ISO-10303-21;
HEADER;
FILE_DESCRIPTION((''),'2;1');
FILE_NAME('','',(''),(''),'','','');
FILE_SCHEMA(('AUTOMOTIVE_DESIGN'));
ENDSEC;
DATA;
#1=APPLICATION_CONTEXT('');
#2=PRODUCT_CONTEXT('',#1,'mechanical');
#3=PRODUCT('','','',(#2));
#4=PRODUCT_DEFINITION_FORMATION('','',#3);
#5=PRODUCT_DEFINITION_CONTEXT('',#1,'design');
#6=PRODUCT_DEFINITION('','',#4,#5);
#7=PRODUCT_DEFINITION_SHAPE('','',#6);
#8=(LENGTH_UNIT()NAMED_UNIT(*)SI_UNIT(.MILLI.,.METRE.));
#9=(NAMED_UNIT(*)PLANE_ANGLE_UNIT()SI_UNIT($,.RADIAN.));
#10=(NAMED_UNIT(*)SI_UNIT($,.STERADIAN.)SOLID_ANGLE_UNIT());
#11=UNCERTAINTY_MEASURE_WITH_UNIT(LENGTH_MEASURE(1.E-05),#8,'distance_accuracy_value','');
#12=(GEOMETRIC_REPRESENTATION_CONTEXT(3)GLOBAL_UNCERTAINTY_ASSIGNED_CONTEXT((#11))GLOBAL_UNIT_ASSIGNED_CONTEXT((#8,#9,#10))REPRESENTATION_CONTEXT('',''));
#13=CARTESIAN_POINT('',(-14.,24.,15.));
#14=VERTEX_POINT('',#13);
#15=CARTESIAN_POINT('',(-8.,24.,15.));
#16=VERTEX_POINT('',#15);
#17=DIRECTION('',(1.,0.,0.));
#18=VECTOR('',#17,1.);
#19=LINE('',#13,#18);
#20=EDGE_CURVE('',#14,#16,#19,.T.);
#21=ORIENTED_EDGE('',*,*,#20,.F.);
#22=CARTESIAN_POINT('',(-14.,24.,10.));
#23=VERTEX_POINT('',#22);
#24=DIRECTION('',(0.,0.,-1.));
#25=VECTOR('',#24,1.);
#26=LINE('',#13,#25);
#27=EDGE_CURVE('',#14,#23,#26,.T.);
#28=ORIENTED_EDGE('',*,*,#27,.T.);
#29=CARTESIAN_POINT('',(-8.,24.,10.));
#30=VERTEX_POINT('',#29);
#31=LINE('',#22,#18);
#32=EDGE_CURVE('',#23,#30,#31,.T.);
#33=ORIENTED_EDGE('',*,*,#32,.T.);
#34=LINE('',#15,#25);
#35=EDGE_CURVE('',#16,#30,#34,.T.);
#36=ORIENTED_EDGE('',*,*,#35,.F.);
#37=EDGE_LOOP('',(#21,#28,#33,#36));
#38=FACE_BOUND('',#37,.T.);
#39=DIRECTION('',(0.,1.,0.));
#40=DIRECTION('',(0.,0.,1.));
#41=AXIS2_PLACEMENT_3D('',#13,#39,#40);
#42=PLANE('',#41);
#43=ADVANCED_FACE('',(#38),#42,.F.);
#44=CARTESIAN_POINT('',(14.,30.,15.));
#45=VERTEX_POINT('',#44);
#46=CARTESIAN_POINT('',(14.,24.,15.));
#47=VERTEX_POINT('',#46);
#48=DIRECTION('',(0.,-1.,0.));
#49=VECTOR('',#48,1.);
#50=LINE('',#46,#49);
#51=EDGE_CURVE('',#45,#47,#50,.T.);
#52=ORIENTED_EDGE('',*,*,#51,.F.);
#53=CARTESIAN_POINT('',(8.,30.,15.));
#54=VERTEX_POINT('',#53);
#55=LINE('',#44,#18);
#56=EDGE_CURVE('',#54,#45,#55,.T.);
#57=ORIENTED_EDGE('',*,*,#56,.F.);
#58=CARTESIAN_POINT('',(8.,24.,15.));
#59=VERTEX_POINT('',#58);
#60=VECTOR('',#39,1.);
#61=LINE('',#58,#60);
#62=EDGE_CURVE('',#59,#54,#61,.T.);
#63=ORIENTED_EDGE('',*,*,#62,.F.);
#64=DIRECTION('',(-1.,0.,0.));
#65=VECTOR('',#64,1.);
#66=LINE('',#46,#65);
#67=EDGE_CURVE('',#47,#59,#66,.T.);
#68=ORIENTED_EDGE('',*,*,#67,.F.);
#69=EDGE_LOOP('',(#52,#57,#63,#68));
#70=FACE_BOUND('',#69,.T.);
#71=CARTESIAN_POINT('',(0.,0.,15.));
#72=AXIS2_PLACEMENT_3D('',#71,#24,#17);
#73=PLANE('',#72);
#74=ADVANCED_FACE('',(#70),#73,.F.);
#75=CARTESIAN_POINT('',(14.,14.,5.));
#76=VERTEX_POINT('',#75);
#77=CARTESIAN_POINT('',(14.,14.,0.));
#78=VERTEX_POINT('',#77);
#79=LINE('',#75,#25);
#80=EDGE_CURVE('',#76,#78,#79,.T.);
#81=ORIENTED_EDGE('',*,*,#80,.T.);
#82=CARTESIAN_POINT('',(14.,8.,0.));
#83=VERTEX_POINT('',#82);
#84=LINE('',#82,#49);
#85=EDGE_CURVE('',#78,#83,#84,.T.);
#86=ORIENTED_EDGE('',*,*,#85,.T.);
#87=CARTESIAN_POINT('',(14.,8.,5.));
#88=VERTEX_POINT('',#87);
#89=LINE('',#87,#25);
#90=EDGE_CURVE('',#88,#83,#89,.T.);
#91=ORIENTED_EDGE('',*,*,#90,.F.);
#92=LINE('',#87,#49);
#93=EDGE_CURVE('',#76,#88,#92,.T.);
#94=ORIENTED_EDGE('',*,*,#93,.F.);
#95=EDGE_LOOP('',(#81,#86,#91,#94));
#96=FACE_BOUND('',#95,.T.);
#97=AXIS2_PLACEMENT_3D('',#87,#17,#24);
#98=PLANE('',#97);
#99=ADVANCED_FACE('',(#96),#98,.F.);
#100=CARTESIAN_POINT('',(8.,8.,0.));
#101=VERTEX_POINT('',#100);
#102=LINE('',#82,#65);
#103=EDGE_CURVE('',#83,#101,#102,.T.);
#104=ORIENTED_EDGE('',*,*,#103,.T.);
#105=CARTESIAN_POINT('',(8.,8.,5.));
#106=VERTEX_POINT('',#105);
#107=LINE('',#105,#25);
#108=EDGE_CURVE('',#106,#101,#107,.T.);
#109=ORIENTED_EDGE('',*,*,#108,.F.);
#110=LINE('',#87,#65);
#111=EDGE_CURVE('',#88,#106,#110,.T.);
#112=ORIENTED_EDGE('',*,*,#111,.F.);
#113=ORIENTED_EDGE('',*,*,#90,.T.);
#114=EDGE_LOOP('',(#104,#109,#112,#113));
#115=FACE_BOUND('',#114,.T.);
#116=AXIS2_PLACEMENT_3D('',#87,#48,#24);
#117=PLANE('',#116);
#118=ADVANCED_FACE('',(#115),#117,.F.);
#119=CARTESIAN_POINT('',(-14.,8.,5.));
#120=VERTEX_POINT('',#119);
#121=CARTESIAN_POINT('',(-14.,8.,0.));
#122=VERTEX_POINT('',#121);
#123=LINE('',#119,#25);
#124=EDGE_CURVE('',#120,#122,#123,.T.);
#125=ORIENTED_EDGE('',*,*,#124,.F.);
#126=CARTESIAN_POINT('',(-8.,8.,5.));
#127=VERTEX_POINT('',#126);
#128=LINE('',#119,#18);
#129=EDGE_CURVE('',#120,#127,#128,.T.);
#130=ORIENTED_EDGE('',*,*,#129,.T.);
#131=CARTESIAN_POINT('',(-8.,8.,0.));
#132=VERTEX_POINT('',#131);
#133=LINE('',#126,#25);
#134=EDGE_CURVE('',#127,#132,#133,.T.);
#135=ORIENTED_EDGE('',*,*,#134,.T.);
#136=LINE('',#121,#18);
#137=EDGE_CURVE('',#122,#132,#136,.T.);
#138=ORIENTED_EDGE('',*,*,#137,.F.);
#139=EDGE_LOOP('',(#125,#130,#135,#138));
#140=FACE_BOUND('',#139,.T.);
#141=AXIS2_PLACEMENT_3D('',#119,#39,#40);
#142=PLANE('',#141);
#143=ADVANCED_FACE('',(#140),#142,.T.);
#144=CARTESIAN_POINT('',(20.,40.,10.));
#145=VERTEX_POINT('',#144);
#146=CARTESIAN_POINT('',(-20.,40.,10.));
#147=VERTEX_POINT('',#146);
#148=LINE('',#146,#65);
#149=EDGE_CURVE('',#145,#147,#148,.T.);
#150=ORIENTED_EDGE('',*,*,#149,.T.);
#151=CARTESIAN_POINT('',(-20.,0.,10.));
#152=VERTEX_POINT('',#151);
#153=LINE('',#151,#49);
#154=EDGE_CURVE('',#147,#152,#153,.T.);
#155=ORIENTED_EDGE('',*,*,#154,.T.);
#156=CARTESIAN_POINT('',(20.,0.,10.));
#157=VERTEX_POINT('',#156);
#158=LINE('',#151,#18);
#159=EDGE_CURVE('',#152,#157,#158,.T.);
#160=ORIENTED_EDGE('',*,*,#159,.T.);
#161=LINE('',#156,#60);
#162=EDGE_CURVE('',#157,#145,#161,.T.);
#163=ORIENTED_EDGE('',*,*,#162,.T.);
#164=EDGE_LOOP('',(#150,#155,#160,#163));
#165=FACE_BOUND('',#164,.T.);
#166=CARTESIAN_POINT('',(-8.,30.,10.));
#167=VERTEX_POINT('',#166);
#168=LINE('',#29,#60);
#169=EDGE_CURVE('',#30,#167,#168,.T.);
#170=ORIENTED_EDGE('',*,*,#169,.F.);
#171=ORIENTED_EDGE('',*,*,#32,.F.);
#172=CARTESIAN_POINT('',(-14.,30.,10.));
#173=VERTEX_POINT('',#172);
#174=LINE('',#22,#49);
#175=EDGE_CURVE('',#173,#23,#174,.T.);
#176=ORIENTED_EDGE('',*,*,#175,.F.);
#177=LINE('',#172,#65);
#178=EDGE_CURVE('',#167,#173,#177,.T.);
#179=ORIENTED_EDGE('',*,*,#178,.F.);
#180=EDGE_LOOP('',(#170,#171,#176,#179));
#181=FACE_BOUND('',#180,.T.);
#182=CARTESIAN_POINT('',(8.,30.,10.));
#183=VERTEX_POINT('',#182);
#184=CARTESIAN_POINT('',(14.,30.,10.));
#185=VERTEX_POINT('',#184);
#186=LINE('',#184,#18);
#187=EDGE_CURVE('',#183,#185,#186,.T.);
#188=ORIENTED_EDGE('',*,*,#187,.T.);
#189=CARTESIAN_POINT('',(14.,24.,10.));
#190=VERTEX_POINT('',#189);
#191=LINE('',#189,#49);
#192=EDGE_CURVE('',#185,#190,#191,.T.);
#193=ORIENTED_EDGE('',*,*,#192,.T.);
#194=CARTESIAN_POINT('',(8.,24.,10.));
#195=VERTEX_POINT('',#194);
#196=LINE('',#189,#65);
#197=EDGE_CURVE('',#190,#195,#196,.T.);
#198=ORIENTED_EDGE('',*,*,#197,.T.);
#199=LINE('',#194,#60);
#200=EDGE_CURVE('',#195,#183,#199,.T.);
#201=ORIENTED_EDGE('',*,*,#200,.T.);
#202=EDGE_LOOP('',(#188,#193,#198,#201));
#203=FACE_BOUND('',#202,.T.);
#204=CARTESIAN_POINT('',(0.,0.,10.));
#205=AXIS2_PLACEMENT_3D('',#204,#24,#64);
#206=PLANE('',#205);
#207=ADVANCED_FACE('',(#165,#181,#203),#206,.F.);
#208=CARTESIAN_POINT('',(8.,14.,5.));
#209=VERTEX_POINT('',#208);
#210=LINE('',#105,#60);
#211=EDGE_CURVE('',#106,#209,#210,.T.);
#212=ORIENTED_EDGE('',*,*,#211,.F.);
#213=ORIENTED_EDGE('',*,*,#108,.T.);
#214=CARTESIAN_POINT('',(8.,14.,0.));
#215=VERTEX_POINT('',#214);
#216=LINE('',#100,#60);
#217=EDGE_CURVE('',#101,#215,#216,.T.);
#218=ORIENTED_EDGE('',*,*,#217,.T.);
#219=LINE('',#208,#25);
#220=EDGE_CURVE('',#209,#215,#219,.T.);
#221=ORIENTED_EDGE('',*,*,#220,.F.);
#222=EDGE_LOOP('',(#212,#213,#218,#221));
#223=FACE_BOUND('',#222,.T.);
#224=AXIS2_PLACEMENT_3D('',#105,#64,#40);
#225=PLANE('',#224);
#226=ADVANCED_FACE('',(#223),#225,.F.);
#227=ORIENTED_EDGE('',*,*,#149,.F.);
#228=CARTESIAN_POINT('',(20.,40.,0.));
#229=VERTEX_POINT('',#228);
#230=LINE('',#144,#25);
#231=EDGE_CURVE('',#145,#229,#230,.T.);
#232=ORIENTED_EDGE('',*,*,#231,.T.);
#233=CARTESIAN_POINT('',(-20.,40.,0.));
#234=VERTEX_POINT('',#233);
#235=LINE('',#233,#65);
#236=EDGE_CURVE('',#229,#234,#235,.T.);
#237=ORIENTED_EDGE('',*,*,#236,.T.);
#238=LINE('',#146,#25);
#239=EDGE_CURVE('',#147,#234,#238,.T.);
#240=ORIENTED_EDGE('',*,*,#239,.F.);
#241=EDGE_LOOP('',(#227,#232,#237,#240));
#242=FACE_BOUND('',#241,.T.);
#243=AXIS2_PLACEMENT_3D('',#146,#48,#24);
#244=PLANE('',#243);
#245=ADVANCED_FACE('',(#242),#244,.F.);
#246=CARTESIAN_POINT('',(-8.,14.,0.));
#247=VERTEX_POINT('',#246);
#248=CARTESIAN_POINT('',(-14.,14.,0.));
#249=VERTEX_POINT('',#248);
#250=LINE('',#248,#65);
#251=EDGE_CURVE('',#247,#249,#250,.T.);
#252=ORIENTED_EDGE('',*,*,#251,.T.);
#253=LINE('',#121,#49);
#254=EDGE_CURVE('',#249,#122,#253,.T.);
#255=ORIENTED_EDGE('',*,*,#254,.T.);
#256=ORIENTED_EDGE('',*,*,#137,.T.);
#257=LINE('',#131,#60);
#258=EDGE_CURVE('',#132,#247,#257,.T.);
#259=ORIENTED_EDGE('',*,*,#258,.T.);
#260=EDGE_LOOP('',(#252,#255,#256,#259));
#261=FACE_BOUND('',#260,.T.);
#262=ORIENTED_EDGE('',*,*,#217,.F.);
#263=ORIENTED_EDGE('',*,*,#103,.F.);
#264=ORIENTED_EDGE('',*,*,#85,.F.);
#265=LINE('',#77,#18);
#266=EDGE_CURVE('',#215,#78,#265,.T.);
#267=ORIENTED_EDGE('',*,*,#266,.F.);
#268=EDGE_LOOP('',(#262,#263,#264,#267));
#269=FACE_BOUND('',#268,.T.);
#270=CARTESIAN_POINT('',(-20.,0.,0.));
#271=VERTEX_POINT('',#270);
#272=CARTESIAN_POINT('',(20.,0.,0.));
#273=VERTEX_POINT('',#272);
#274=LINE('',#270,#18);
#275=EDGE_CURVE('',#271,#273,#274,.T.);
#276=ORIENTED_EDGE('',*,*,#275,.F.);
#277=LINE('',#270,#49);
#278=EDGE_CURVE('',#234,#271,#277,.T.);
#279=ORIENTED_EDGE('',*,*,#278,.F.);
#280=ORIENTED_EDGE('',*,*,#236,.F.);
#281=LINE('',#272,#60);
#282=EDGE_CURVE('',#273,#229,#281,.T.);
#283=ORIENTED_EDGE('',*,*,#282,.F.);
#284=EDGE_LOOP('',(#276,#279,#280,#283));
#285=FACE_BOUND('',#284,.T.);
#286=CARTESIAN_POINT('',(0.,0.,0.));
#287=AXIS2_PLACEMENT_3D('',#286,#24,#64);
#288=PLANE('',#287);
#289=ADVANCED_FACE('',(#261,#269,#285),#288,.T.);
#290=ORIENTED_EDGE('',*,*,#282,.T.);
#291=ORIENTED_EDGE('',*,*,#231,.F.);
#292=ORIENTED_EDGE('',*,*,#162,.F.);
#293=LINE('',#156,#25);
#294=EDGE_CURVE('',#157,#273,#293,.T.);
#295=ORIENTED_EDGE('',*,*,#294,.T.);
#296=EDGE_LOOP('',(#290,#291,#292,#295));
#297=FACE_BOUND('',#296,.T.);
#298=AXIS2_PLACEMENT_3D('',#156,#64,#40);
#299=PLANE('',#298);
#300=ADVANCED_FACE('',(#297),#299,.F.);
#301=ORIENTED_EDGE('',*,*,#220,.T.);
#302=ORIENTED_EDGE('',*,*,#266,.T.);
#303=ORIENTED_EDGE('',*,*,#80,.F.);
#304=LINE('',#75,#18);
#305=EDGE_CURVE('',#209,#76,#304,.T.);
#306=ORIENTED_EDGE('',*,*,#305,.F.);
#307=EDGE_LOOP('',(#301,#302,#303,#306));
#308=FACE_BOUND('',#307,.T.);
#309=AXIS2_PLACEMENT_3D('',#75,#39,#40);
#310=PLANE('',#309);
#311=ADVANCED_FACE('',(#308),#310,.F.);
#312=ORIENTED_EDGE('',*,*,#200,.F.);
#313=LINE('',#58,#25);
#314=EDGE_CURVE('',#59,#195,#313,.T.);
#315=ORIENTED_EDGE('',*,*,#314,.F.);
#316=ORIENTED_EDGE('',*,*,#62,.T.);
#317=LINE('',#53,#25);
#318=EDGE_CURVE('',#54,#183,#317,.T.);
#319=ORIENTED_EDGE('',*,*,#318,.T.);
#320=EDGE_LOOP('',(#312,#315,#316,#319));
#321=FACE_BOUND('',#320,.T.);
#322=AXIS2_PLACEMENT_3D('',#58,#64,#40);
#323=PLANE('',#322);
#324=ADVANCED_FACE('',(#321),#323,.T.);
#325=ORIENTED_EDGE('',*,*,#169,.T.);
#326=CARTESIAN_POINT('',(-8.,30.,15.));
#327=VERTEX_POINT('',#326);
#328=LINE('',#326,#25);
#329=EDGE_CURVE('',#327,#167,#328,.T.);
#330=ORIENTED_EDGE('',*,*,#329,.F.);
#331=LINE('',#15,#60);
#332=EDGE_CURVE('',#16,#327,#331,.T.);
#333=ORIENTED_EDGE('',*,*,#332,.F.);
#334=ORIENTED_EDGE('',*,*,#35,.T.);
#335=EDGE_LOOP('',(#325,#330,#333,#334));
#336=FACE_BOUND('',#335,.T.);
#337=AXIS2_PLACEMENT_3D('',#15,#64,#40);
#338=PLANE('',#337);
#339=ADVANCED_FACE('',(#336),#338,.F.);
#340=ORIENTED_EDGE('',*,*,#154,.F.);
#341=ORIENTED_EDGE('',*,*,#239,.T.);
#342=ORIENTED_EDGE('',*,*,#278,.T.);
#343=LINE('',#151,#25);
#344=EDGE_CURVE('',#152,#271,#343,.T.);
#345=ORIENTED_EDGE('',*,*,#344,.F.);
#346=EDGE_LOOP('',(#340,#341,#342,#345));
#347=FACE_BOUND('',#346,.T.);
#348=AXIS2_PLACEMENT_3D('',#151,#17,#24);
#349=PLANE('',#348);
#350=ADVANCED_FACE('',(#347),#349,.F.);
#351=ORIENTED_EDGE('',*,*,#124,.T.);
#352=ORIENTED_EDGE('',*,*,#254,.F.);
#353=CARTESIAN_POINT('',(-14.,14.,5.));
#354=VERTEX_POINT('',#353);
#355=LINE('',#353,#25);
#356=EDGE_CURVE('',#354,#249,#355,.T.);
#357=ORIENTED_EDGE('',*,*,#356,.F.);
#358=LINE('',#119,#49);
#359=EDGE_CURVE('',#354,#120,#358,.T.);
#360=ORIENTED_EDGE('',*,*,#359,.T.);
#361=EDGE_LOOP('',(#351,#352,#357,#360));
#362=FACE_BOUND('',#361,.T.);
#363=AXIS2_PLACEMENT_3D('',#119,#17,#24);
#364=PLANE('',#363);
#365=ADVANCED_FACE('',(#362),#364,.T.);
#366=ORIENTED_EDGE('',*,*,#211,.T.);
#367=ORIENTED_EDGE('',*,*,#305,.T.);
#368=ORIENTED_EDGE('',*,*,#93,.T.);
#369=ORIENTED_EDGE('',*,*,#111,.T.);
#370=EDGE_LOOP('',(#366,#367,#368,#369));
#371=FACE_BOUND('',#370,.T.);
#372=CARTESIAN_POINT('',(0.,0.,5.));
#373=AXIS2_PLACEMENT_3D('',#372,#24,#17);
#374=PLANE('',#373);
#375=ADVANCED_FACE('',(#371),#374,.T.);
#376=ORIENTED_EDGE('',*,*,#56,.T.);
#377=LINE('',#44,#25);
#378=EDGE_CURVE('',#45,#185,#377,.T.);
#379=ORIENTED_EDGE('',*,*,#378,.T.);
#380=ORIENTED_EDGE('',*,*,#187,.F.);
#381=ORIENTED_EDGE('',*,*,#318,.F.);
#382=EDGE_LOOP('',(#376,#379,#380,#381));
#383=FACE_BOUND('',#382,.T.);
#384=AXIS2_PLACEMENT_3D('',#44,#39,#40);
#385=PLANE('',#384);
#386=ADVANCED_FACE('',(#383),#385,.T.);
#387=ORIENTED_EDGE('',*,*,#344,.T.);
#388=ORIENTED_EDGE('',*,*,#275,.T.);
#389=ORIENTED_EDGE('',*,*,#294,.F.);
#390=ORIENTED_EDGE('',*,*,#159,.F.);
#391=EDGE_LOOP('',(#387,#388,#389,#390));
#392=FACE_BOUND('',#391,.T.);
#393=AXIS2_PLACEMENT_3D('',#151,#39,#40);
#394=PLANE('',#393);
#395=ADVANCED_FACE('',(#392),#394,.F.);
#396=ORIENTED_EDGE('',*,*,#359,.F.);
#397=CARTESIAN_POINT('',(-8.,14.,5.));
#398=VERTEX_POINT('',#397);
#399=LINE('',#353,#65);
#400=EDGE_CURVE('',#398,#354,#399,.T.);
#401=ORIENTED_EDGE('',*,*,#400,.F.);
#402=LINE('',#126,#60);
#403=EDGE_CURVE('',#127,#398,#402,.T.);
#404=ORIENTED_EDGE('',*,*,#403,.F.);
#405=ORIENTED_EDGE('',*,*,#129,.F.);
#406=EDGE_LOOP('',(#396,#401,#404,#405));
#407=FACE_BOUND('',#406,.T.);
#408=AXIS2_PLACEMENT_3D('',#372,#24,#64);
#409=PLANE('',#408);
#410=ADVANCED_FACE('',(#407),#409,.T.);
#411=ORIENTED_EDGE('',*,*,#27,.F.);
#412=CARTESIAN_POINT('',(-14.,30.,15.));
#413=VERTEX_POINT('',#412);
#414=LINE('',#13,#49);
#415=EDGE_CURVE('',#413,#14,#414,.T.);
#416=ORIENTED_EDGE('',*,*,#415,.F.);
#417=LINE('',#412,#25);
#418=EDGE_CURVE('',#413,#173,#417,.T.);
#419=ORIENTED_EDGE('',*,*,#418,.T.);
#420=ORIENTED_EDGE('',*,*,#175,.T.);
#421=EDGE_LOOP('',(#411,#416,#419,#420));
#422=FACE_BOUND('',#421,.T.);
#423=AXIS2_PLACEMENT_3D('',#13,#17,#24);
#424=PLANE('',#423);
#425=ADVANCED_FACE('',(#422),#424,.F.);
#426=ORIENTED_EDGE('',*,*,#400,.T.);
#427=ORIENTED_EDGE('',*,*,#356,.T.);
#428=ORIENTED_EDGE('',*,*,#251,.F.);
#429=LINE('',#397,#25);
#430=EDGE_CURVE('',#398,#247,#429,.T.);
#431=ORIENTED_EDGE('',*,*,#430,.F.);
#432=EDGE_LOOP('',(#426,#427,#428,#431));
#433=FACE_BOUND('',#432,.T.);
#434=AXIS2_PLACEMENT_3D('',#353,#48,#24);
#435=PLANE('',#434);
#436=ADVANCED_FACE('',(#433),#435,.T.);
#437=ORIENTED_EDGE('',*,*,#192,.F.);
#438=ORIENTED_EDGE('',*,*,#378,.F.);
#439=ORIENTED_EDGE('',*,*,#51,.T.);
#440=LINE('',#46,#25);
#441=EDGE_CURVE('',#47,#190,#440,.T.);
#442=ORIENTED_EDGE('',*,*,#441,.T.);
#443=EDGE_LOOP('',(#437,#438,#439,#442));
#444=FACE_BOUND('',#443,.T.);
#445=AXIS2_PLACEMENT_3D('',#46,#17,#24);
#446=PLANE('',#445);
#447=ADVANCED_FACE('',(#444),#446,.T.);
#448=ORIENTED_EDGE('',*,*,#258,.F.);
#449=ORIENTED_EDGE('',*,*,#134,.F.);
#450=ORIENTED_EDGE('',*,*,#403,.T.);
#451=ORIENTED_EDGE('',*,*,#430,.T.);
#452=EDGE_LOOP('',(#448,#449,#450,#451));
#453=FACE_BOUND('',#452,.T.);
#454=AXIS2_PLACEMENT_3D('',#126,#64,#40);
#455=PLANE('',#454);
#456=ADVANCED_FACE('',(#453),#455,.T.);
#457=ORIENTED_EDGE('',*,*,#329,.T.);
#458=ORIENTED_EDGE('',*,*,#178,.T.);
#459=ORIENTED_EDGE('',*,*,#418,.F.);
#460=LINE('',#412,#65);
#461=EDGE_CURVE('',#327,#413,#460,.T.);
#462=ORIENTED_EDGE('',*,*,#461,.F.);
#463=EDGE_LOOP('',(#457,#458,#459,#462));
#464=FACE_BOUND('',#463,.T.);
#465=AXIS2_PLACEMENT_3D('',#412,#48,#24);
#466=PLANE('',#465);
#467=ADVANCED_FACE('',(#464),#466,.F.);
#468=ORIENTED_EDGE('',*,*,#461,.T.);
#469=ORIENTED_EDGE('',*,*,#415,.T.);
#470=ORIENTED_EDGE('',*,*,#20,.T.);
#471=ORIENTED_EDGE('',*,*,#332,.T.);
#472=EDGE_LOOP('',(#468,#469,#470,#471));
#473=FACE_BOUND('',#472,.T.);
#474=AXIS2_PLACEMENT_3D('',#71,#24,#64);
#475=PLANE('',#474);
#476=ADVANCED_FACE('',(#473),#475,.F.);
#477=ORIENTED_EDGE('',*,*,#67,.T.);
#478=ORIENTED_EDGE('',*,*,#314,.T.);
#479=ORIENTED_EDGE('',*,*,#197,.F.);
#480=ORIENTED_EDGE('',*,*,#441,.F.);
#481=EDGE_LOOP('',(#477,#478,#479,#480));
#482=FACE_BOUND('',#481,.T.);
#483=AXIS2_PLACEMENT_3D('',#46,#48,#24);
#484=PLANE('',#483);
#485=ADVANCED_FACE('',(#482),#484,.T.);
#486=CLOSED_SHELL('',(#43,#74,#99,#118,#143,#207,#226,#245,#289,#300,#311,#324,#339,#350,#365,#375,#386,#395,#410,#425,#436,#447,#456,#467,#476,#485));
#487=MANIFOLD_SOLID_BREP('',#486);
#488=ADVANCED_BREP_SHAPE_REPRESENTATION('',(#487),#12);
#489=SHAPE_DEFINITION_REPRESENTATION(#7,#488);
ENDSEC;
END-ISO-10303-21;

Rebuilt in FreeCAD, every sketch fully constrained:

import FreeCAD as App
import Part
import Sketcher

V = App.Vector
Q = App.Units.Quantity

doc = App.newDocument("Part")
body = doc.addObject("PartDesign::Body", "Body")

sketch1 = body.newObject("Sketcher::SketchObject", "Sketch")
sketch1.AttachmentSupport = (doc.getObject("XY_Plane"), [""])
sketch1.MapMode = "FlatFace"
sketch1.addGeometry(Part.LineSegment(V(-20, 40, 0), V(-20, 0, 0)), False)
sketch1.addGeometry(Part.LineSegment(V(-20, 0, 0), V(20, 0, 0)), False)
sketch1.addGeometry(Part.LineSegment(V(20, 0, 0), V(20, 40, 0)), False)
sketch1.addGeometry(Part.LineSegment(V(20, 40, 0), V(-20, 40, 0)), False)
sketch1.addConstraint(Sketcher.Constraint("Coincident", 0, 2, 1, 1))
sketch1.addConstraint(Sketcher.Constraint("Coincident", 1, 2, 2, 1))
sketch1.addConstraint(Sketcher.Constraint("Coincident", 2, 2, 3, 1))
sketch1.addConstraint(Sketcher.Constraint("Coincident", 3, 2, 0, 1))
sketch1.addConstraint(Sketcher.Constraint("Vertical", 0))
sketch1.addConstraint(Sketcher.Constraint("Horizontal", 1))
sketch1.addConstraint(Sketcher.Constraint("Vertical", 2))
sketch1.addConstraint(Sketcher.Constraint("Horizontal", 3))
sketch1.addConstraint(Sketcher.Constraint("Symmetric", 0, 2, 1, 2, -1, 1))
sketch1.addConstraint(Sketcher.Constraint("Equal", 3, 0))
sketch1.addConstraint(Sketcher.Constraint("DistanceX", 1, 1, 1, 2, Q("40 mm")))
pad1 = body.newObject("PartDesign::Pad", "Pad")
pad1.Profile = sketch1
pad1.Length = 10

sketch2 = body.newObject("Sketcher::SketchObject", "Sketch001")
sketch2.AttachmentSupport = (doc.getObject("XY_Plane"), [""])
sketch2.MapMode = "FlatFace"
sketch2.addGeometry(Part.LineSegment(V(-14, 14, 0), V(-14, 8, 0)), False)
sketch2.addGeometry(Part.LineSegment(V(-14, 8, 0), V(-8, 8, 0)), False)
sketch2.addGeometry(Part.LineSegment(V(-8, 8, 0), V(-8, 14, 0)), False)
sketch2.addGeometry(Part.LineSegment(V(-8, 14, 0), V(-14, 14, 0)), False)
sketch2.addConstraint(Sketcher.Constraint("Coincident", 0, 2, 1, 1))
sketch2.addConstraint(Sketcher.Constraint("Coincident", 1, 2, 2, 1))
sketch2.addConstraint(Sketcher.Constraint("Coincident", 2, 2, 3, 1))
sketch2.addConstraint(Sketcher.Constraint("Coincident", 3, 2, 0, 1))
sketch2.addConstraint(Sketcher.Constraint("Vertical", 0))
sketch2.addConstraint(Sketcher.Constraint("Horizontal", 1))
sketch2.addConstraint(Sketcher.Constraint("Vertical", 2))
sketch2.addConstraint(Sketcher.Constraint("Horizontal", 3))
sketch2.addConstraint(Sketcher.Constraint("Equal", 3, 0))
sketch2.addConstraint(Sketcher.Constraint("DistanceX", 1, 1, 1, 2, Q("6 mm")))
sketch2.addConstraint(Sketcher.Constraint("DistanceX", 0, 2, -1, 1, Q("14 mm")))
sketch2.addConstraint(Sketcher.Constraint("DistanceY", -1, 1, 0, 2, Q("8 mm")))
pocket1 = body.newObject("PartDesign::Pocket", "Pocket")
pocket1.Profile = sketch2
pocket1.Length = 5
pocket1.Reversed = True

sketch3 = body.newObject("Sketcher::SketchObject", "Sketch002")
sketch3.AttachmentSupport = (doc.getObject("XY_Plane"), [""])
sketch3.MapMode = "FlatFace"
sketch3.AttachmentOffset = App.Placement(V(0, 0, 10), App.Rotation())
sketch3.addGeometry(Part.LineSegment(V(-14, 30, 0), V(-14, 24, 0)), False)
sketch3.addGeometry(Part.LineSegment(V(-14, 24, 0), V(-8, 24, 0)), False)
sketch3.addGeometry(Part.LineSegment(V(-8, 24, 0), V(-8, 30, 0)), False)
sketch3.addGeometry(Part.LineSegment(V(-8, 30, 0), V(-14, 30, 0)), False)
sketch3.addConstraint(Sketcher.Constraint("Coincident", 0, 2, 1, 1))
sketch3.addConstraint(Sketcher.Constraint("Coincident", 1, 2, 2, 1))
sketch3.addConstraint(Sketcher.Constraint("Coincident", 2, 2, 3, 1))
sketch3.addConstraint(Sketcher.Constraint("Coincident", 3, 2, 0, 1))
sketch3.addConstraint(Sketcher.Constraint("Vertical", 0))
sketch3.addConstraint(Sketcher.Constraint("Horizontal", 1))
sketch3.addConstraint(Sketcher.Constraint("Vertical", 2))
sketch3.addConstraint(Sketcher.Constraint("Horizontal", 3))
sketch3.addConstraint(Sketcher.Constraint("Equal", 3, 0))
sketch3.addConstraint(Sketcher.Constraint("DistanceX", 1, 1, 1, 2, Q("6 mm")))
sketch3.addConstraint(Sketcher.Constraint("DistanceX", 0, 2, -1, 1, Q("14 mm")))
sketch3.addConstraint(Sketcher.Constraint("DistanceY", -1, 1, 0, 2, Q("24 mm")))
pad2 = body.newObject("PartDesign::Pad", "Pad001")
pad2.Profile = sketch3
pad2.Length = 5
doc.recompute()

mirrored = body.newObject("PartDesign::Mirrored", "Mirrored")
mirrored.Originals = [pocket1, pad2]
mirrored.MirrorPlane = (doc.getObject("YZ_Plane"), [""])
body.Tip = mirrored

doc.recompute()
